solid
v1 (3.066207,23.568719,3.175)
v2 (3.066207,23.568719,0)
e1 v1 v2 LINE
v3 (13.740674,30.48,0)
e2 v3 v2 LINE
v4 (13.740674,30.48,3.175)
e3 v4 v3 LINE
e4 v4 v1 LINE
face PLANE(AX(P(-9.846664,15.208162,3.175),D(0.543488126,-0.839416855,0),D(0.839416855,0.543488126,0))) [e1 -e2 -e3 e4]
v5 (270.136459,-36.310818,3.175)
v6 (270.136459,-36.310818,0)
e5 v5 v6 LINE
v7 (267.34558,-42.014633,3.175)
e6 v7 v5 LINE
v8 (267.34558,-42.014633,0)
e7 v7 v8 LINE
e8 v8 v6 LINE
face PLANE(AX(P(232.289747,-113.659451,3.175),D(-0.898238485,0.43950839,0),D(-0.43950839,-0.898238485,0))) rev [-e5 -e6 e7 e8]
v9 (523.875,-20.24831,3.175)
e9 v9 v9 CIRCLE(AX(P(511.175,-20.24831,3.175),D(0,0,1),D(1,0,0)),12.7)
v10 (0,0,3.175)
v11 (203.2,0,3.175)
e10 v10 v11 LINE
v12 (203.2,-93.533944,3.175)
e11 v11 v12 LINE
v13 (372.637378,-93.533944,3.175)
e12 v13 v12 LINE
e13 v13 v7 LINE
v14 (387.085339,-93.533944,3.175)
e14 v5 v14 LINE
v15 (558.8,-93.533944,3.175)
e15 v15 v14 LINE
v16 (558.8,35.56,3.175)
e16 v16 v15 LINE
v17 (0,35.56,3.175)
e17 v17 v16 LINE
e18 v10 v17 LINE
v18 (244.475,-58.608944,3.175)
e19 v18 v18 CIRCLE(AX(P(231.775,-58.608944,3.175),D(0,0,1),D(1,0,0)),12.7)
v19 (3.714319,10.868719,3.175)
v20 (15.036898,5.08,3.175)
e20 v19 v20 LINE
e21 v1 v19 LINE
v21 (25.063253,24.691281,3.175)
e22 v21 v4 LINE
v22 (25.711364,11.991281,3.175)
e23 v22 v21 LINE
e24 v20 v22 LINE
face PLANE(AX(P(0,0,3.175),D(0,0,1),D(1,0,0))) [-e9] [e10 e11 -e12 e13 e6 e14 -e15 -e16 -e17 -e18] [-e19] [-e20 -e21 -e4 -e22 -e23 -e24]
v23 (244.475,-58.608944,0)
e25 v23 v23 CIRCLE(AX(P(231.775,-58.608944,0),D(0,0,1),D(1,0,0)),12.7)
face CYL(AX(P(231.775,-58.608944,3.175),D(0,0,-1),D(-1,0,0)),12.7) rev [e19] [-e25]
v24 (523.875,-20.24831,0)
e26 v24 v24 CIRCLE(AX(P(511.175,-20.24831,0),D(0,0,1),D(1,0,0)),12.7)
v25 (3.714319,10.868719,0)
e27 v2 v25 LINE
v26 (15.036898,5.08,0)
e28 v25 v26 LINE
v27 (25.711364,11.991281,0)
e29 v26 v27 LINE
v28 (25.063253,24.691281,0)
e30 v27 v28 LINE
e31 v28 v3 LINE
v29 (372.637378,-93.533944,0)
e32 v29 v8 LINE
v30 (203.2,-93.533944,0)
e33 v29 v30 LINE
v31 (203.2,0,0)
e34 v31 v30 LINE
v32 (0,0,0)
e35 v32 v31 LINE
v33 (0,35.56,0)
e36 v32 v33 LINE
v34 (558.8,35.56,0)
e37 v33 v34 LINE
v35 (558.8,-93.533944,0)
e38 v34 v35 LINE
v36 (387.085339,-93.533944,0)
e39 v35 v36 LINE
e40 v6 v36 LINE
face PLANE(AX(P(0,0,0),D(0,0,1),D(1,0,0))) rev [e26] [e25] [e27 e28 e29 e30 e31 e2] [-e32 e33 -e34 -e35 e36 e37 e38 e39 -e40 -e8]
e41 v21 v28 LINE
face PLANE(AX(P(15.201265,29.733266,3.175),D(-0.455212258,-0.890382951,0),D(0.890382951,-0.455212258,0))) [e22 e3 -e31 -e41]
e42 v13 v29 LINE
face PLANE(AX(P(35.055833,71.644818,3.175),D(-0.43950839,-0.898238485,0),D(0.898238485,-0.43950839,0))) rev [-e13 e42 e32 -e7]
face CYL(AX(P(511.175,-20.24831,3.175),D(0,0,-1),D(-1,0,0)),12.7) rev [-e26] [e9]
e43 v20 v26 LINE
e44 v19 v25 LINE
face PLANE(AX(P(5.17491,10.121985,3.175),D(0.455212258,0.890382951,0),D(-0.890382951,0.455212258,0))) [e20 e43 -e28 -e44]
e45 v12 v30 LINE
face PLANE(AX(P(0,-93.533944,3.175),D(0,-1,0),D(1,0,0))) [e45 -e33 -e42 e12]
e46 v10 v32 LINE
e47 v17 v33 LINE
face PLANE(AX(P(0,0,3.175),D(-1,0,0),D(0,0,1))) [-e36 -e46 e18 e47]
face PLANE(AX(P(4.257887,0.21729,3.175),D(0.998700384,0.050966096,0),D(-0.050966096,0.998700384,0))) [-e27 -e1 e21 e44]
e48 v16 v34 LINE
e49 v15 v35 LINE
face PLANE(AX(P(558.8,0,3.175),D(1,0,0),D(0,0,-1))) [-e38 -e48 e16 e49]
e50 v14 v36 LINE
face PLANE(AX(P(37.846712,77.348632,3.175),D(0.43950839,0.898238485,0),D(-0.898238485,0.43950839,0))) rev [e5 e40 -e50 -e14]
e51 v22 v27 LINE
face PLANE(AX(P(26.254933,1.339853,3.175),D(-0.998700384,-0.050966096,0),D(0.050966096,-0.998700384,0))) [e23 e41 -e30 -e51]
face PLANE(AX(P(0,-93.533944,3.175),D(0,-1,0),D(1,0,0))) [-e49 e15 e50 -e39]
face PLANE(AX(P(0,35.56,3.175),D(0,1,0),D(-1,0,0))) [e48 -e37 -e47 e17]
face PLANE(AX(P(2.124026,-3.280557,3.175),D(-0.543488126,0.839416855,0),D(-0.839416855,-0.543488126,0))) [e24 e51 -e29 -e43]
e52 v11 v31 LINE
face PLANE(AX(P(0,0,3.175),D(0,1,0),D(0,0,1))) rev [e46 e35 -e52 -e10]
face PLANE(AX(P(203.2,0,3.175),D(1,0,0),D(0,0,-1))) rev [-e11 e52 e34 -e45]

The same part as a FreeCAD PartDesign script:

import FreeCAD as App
import Part
import Sketcher
Q = App.Units.Quantity

doc = App.newDocument("Part")
body = doc.addObject("PartDesign::Body", "Body")

# Sketch on XY plane
sketch1 = body.newObject("Sketcher::SketchObject", "Sketch")
sketch1.AttachmentSupport = (doc.getObject("XY_Plane"), [""])
sketch1.MapMode = "FlatFace"
sketch1.addGeometry(Part.LineSegment(App.Vector(0, 36, 0), App.Vector(0, 0, 0)), False)
sketch1.addGeometry(Part.LineSegment(App.Vector(0, 0, 0), App.Vector(203, 0, 0)), False)
sketch1.addGeometry(Part.LineSegment(App.Vector(203, 0, 0), App.Vector(203, -94, 0)), False)
sketch1.addGeometry(Part.LineSegment(App.Vector(203, -94, 0), App.Vector(373, -94, 0)), False)
sketch1.addGeometry(Part.LineSegment(App.Vector(373, -94, 0), App.Vector(267, -42, 0)), False)
sketch1.addGeometry(Part.LineSegment(App.Vector(267, -42, 0), App.Vector(270, -36, 0)), False)
sketch1.addGeometry(Part.LineSegment(App.Vector(270, -36, 0), App.Vector(387, -94, 0)), False)
sketch1.addGeometry(Part.LineSegment(App.Vector(387, -94, 0), App.Vector(559, -94, 0)), False)
sketch1.addGeometry(Part.LineSegment(App.Vector(559, -94, 0), App.Vector(559, 36, 0)), False)
sketch1.addGeometry(Part.LineSegment(App.Vector(559, 36, 0), App.Vector(0, 36, 0)), False)
sketch1.addGeometry(Part.Circle(App.Vector(232, -59, 0), App.Vector(0, 0, 1), 13), False)
sketch1.addGeometry(Part.LineSegment(App.Vector(14, 30, 0), App.Vector(25, 25, 0)), False)
sketch1.addGeometry(Part.LineSegment(App.Vector(25, 25, 0), App.Vector(26, 12, 0)), False)
sketch1.addGeometry(Part.LineSegment(App.Vector(26, 12, 0), App.Vector(15, 5, 0)), False)
sketch1.addGeometry(Part.LineSegment(App.Vector(15, 5, 0), App.Vector(4, 11, 0)), False)
sketch1.addGeometry(Part.LineSegment(App.Vector(4, 11, 0), App.Vector(3, 24, 0)), False)
sketch1.addGeometry(Part.LineSegment(App.Vector(3, 24, 0), App.Vector(14, 30, 0)), False)
sketch1.addGeometry(Part.Circle(App.Vector(511, -20, 0), App.Vector(0, 0, 1), 13), False)
sketch1.addConstraint(Sketcher.Constraint("Coincident", 0, 2, 1, 1))
sketch1.addConstraint(Sketcher.Constraint("Coincident", 1, 2, 2, 1))
sketch1.addConstraint(Sketcher.Constraint("Coincident", 2, 2, 3, 1))
sketch1.addConstraint(Sketcher.Constraint("Coincident", 3, 2, 4, 1))
sketch1.addConstraint(Sketcher.Constraint("Coincident", 4, 2, 5, 1))
sketch1.addConstraint(Sketcher.Constraint("Coincident", 5, 2, 6, 1))
sketch1.addConstraint(Sketcher.Constraint("Coincident", 6, 2, 7, 1))
sketch1.addConstraint(Sketcher.Constraint("Coincident", 7, 2, 8, 1))
sketch1.addConstraint(Sketcher.Constraint("Coincident", 8, 2, 9, 1))
sketch1.addConstraint(Sketcher.Constraint("Coincident", 9, 2, 0, 1))
sketch1.addConstraint(Sketcher.Constraint("Coincident", 11, 2, 12, 1))
sketch1.addConstraint(Sketcher.Constraint("Coincident", 12, 2, 13, 1))
sketch1.addConstraint(Sketcher.Constraint("Coincident", 13, 2, 14, 1))
sketch1.addConstraint(Sketcher.Constraint("Coincident", 14, 2, 15, 1))
sketch1.addConstraint(Sketcher.Constraint("Coincident", 15, 2, 16, 1))
sketch1.addConstraint(Sketcher.Constraint("Coincident", 16, 2, 11, 1))
sketch1.addConstraint(Sketcher.Constraint("Vertical", 0))
sketch1.addConstraint(Sketcher.Constraint("Horizontal", 1))
sketch1.addConstraint(Sketcher.Constraint("Vertical", 2))
sketch1.addConstraint(Sketcher.Constraint("Horizontal", 3))
sketch1.addConstraint(Sketcher.Constraint("Horizontal", 7))
sketch1.addConstraint(Sketcher.Constraint("Vertical", 8))
sketch1.addConstraint(Sketcher.Constraint("Horizontal", 9))
sketch1.addConstraint(Sketcher.Constraint("Coincident", 0, 2, -1, 1))
sketch1.addConstraint(Sketcher.Constraint("Equal", 10, 17))
sketch1.addConstraint(Sketcher.Constraint("Perpendicular", 4, 5))
sketch1.addConstraint(Sketcher.Constraint("Perpendicular", 5, 6))
sketch1.addConstraint(Sketcher.Constraint("Parallel", 11, 14))
sketch1.addConstraint(Sketcher.Constraint("Parallel", 12, 15))
sketch1.addConstraint(Sketcher.Constraint("Parallel", 13, 16))
sketch1.addConstraint(Sketcher.Constraint("Horizontal", 3, 2, 6, 2))
sketch1.addConstraint(Sketcher.Constraint("Equal", 11, 12))
sketch1.addConstraint(Sketcher.Constraint("Equal", 12, 13))
sketch1.addConstraint(Sketcher.Constraint("Equal", 13, 14))
sketch1.addConstraint(Sketcher.Constraint("Diameter", 10, Q("1 in")))
sketch1.addConstraint(Sketcher.Constraint("DistanceX", 1, 1, 1, 2, Q("8 in")))
sketch1.addConstraint(Sketcher.Constraint("DistanceX", 9, 2, 9, 1, Q("22 in")))
sketch1.addConstraint(Sketcher.Constraint("DistanceY", 0, 2, 0, 1, Q("1.4 in")))
sketch1.addConstraint(Sketcher.Constraint("DistanceX", 10, 3, 17, 3, Q("11 in")))
sketch1.addConstraint(Sketcher.Constraint("DistanceY", -1, 1, 13, 2, Q("0.2 in")))
sketch1.addConstraint(Sketcher.Constraint("DistanceY", -1, 1, 16, 2, Q("1.2 in")))
sketch1.addConstraint(Sketcher.Constraint("DistanceY", 12, 2, 11, 2, Q("0.5 in")))
sketch1.addConstraint(Sketcher.Constraint("Distance", 5, Q("0.25 in")))
sketch1.addConstraint(Sketcher.Constraint("DistanceX", -1, 1, 10, 3, Q("9.125 in")))
sketch1.addConstraint(Sketcher.Constraint("DistanceY", 2, 2, 10, 3, Q("1.375 in")))
sketch1.addConstraint(Sketcher.Constraint("DistanceX", 7, 1, 7, 2, Q("171.714661 mm")))
sketch1.addConstraint(Sketcher.Constraint("Distance", 6, Q("130.198029 mm")))
sketch1.addConstraint(Sketcher.Constraint("DistanceX", 3, 1, 3, 2, Q("169.437378 mm")))
sketch1.addConstraint(Sketcher.Constraint("DistanceY", 2, 2, 2, 1, Q("93.533944 mm")))
sketch1.addConstraint(Sketcher.Constraint("DistanceY", 17, 3, -1, 1, Q("20.24831 mm")))
sketch1.addConstraint(Sketcher.Constraint("DistanceY", -1, 1, 11, 2, Q("24.691281 mm")))
sketch1.addConstraint(Sketcher.Constraint("DistanceX", -1, 1, 14, 2, Q("3.714319 mm")))
sketch1.addConstraint(Sketcher.Constraint("DistanceX", 11, 2, 12, 2, Q("0.648112 mm")))
pad1 = body.newObject("PartDesign::Pad", "Pad")
pad1.Profile = sketch1
pad1.Length = Q("0.125 in")

doc.recompute()
